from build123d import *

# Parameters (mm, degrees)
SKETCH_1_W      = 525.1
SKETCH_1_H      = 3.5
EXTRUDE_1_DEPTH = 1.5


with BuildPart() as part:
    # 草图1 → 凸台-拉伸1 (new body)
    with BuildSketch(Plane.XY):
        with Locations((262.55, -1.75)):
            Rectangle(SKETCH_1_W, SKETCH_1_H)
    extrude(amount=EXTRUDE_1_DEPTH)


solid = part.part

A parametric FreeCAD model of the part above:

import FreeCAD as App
import Part
import Sketcher

V = App.Vector
Q = App.Units.Quantity

doc = App.newDocument("Part")
body = doc.addObject("PartDesign::Body", "Body")

# Sketch on XY plane
sketch1 = doc.addObject("Sketcher::SketchObject", "Sketch")
body.addObject(sketch1)
sketch1.AttachmentSupport = (doc.XY_Plane, [""])
sketch1.MapMode = "FlatFace"
sketch1.addGeometry([
    Part.LineSegment(V(0, 0, 0), V(0, -3.5, 0)),
    Part.LineSegment(V(0, -3.5, 0), V(525.1, -3.5, 0)),
    Part.LineSegment(V(525.1, -3.5, 0), V(525.1, 0, 0)),
    Part.LineSegment(V(525.1, 0, 0), V(0, 0, 0)),
], False)
sketch1.addConstraint([
    Sketcher.Constraint("Coincident", 0, 2, 1, 1),
    Sketcher.Constraint("Coincident", 1, 2, 2, 1),
    Sketcher.Constraint("Coincident", 2, 2, 3, 1),
    Sketcher.Constraint("Coincident", 3, 2, 0, 1),
    Sketcher.Constraint("Vertical", 0),
    Sketcher.Constraint("Horizontal", 1),
    Sketcher.Constraint("Vertical", 2),
    Sketcher.Constraint("Horizontal", 3),
    Sketcher.Constraint("Coincident", 3, 2, -1, 1),
    Sketcher.Constraint("DistanceX", 1, 1, 1, 2, Q("525.1 mm")),
    Sketcher.Constraint("DistanceY", 0, 2, 0, 1, Q("3.5 mm")),
])
pad1 = doc.addObject("PartDesign::Pad", "Pad")
body.addObject(pad1)
pad1.Profile = sketch1
pad1.Length = 1.5

doc.recompute()
